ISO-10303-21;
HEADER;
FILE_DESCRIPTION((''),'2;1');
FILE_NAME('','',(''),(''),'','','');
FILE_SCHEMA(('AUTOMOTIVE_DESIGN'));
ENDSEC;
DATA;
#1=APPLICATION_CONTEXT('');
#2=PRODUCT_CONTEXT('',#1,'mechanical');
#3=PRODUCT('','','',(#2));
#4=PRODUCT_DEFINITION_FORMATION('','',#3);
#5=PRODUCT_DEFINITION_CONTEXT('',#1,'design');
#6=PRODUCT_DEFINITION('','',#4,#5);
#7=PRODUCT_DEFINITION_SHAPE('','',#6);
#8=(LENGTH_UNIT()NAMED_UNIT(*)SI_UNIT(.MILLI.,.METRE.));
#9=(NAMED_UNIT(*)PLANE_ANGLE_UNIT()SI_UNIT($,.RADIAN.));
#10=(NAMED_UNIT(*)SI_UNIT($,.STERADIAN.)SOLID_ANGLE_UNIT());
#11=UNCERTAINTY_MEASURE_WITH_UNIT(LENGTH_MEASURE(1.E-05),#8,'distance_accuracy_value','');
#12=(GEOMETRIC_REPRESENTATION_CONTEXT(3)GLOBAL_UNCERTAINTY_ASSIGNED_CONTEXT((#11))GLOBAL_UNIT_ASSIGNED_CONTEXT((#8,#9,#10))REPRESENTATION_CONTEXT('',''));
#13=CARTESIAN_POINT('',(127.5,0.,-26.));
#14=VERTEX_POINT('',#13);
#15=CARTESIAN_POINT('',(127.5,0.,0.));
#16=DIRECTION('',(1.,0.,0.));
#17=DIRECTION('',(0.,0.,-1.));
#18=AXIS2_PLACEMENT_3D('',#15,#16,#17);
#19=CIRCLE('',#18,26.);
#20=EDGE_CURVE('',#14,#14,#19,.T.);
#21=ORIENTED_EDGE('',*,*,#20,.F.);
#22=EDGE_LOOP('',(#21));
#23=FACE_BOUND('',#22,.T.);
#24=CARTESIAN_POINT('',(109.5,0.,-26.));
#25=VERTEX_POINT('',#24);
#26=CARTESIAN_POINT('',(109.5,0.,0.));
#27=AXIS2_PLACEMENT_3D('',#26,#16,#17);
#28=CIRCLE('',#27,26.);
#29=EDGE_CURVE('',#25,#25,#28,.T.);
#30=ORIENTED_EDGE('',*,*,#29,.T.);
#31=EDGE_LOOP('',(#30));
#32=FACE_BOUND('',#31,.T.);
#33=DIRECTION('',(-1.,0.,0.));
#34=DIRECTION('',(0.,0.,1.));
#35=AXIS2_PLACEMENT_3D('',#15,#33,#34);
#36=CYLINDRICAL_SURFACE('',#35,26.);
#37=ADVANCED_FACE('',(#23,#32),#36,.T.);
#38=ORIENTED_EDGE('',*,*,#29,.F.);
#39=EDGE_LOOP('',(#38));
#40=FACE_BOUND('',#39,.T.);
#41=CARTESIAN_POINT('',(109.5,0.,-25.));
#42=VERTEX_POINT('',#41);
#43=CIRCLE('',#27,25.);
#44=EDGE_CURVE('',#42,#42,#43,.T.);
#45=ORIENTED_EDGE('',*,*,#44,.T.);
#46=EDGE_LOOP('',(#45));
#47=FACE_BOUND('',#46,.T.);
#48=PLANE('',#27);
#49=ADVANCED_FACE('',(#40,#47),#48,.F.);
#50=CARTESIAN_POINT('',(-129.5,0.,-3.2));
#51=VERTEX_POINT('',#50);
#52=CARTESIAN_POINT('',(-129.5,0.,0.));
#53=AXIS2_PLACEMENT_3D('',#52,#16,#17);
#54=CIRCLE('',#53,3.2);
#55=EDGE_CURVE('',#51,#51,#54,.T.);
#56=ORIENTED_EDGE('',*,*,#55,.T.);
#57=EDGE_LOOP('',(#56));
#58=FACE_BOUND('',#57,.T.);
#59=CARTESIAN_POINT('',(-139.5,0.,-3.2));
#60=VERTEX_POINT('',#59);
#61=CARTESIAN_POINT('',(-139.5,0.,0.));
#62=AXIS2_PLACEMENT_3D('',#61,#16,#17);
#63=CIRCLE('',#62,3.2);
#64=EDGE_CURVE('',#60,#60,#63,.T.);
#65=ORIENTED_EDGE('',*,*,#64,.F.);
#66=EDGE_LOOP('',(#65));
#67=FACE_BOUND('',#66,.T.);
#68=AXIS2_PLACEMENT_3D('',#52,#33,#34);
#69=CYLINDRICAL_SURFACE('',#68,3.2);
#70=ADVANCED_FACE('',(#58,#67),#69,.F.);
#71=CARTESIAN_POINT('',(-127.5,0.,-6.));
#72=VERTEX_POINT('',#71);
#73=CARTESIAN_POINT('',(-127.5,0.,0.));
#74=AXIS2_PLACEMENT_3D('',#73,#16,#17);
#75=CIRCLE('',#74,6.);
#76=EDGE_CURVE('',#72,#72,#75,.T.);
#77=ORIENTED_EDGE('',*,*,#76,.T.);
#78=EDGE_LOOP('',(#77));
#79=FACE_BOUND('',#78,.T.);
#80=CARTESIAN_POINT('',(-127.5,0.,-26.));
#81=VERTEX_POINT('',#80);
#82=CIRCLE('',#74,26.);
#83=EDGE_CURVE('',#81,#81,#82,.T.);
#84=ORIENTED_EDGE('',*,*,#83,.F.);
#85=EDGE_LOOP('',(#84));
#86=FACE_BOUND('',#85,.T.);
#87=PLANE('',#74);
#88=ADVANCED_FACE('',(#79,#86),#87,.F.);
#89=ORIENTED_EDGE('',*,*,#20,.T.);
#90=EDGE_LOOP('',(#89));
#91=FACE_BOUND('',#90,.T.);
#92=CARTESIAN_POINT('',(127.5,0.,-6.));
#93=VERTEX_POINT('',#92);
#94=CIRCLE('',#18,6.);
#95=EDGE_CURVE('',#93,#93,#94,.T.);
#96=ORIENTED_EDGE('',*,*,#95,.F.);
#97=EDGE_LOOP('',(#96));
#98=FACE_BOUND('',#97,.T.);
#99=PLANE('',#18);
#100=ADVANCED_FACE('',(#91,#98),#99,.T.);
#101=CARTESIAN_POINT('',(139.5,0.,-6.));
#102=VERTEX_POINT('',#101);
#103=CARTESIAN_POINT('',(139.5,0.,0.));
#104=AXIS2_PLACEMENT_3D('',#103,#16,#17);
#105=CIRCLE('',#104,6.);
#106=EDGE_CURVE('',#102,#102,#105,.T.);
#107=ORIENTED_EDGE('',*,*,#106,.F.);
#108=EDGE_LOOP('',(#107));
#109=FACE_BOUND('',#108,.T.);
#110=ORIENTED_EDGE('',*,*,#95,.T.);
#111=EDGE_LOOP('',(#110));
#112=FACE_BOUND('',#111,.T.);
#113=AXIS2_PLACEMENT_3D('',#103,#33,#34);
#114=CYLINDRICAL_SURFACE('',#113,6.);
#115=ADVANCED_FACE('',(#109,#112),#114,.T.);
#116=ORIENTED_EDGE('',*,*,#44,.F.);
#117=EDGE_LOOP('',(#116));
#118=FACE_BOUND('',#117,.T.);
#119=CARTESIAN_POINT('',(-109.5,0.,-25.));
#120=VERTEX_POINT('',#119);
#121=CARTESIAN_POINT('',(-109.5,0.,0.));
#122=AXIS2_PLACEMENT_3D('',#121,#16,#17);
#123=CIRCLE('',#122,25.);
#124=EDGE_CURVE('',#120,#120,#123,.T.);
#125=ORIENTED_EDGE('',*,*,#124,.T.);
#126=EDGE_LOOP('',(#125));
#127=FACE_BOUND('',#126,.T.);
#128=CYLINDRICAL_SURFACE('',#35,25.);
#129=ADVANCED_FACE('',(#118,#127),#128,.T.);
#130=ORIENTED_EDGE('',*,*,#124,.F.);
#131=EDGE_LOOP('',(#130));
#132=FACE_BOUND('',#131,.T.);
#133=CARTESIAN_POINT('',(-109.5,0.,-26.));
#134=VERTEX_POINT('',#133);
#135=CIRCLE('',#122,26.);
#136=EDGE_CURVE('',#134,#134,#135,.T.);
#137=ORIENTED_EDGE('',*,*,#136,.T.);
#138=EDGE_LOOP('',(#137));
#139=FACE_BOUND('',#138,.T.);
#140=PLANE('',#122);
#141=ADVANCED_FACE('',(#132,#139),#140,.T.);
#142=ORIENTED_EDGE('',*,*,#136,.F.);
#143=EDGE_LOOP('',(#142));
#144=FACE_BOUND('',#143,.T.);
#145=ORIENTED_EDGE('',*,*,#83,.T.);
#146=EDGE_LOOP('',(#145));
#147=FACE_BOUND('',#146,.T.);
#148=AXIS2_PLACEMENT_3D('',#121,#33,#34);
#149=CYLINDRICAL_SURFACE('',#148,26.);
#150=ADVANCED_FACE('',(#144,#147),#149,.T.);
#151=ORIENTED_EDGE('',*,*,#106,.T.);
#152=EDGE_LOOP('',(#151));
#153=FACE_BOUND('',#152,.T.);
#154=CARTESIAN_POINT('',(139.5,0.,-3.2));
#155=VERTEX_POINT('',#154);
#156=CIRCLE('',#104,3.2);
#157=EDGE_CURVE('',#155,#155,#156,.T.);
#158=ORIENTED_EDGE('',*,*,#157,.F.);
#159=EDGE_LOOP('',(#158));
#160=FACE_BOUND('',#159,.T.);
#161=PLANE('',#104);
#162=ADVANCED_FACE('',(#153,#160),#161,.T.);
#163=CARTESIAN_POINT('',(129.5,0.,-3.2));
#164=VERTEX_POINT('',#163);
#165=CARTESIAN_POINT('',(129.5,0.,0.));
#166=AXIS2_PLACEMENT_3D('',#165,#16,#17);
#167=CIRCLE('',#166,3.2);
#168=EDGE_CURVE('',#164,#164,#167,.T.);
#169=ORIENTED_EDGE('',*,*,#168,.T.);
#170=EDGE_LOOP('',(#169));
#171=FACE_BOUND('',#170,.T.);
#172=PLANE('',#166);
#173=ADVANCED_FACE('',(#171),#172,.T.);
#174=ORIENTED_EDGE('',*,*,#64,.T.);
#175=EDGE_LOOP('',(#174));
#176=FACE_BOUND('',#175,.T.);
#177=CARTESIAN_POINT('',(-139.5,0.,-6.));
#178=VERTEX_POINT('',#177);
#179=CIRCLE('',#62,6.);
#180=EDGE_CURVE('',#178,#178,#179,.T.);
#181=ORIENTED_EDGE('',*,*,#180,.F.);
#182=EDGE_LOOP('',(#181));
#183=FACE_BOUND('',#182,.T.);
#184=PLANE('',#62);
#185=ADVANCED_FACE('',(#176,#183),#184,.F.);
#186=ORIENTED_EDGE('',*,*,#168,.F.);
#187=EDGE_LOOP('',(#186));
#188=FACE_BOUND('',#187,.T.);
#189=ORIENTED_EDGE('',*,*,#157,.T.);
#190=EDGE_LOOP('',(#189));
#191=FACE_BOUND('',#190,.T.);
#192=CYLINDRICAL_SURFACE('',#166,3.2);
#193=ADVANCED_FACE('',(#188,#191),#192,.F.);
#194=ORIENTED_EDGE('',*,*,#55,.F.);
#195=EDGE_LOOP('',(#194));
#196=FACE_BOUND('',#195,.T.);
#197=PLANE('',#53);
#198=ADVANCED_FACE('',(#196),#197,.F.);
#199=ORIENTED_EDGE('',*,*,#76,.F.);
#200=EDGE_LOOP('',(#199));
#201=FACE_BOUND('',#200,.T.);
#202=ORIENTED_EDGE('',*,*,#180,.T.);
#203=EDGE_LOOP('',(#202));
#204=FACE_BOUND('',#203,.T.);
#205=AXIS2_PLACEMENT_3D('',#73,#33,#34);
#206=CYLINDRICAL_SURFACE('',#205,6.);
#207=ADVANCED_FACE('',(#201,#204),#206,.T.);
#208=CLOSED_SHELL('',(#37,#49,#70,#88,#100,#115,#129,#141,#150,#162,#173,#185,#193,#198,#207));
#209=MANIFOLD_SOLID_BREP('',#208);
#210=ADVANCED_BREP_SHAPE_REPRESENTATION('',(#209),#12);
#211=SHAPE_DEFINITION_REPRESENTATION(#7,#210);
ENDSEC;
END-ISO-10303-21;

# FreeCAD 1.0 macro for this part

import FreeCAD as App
import Part
import Sketcher

doc = App.newDocument("Part")
body = doc.addObject("PartDesign::Body", "Body")

# Sketch on YZ plane
sketch1 = doc.addObject("Sketcher::SketchObject", "Sketch")
body.addObject(sketch1)
sketch1.AttachmentSupport = (doc.YZ_Plane, [""])
sketch1.MapMode = "FlatFace"
sketch1.AttachmentOffset = App.Placement(App.Vector(0, 0, -127.5), App.Rotation())
sketch1.addGeometry(Part.Circle(App.Vector(0, 0, 0), App.Vector(0, 0, 1), 25), False)
sketch1.addConstraint(Sketcher.Constraint("Coincident", 0, 3, -1, 1))
sketch1.addConstraint(Sketcher.Constraint("Diameter", 0, 50.0))
pad1 = doc.addObject("PartDesign::Pad", "Pad")
body.addObject(pad1)
pad1.Profile = sketch1
pad1.Length = 255

# Sketch on YZ plane
sketch2 = doc.addObject("Sketcher::SketchObject", "Sketch001")
body.addObject(sketch2)
sketch2.AttachmentSupport = (doc.YZ_Plane, [""])
sketch2.MapMode = "FlatFace"
sketch2.AttachmentOffset = App.Placement(App.Vector(0, 0, -127.5), App.Rotation())
sketch2.addGeometry(Part.Circle(App.Vector(0, 0, 0), App.Vector(0, 0, 1), 26), False)
sketch2.addConstraint(Sketcher.Constraint("Coincident", 0, 3, -1, 1))
sketch2.addConstraint(Sketcher.Constraint("Diameter", 0, 52.0))
pad2 = doc.addObject("PartDesign::Pad", "Pad001")
body.addObject(pad2)
pad2.Profile = sketch2
pad2.Length = 18

# Sketch on YZ plane
sketch3 = doc.addObject("Sketcher::SketchObject", "Sketch002")
body.addObject(sketch3)
sketch3.AttachmentSupport = (doc.YZ_Plane, [""])
sketch3.MapMode = "FlatFace"
sketch3.AttachmentOffset = App.Placement(App.Vector(0, 0, 109.5), App.Rotation())
sketch3.addGeometry(Part.Circle(App.Vector(0, 0, 0), App.Vector(0, 0, 1), 26), False)
sketch3.addConstraint(Sketcher.Constraint("Coincident", 0, 3, -1, 1))
sketch3.addConstraint(Sketcher.Constraint("Diameter", 0, 52.0))
pad3 = doc.addObject("PartDesign::Pad", "Pad002")
body.addObject(pad3)
pad3.Profile = sketch3
pad3.Length = 18

# Sketch on YZ plane
sketch4 = doc.addObject("Sketcher::SketchObject", "Sketch003")
body.addObject(sketch4)
sketch4.AttachmentSupport = (doc.YZ_Plane, [""])
sketch4.MapMode = "FlatFace"
sketch4.AttachmentOffset = App.Placement(App.Vector(0, 0, -139.5), App.Rotation())
sketch4.addGeometry(Part.Circle(App.Vector(0, 0, 0), App.Vector(0, 0, 1), 6), False)
sketch4.addConstraint(Sketcher.Constraint("Coincident", 0, 3, -1, 1))
sketch4.addConstraint(Sketcher.Constraint("Diameter", 0, 12.0))
pad4 = doc.addObject("PartDesign::Pad", "Pad003")
body.addObject(pad4)
pad4.Profile = sketch4
pad4.Length = 12

# Sketch on YZ plane
sketch5 = doc.addObject("Sketcher::SketchObject", "Sketch004")
body.addObject(sketch5)
sketch5.AttachmentSupport = (doc.YZ_Plane, [""])
sketch5.MapMode = "FlatFace"
sketch5.AttachmentOffset = App.Placement(App.Vector(0, 0, -139.5), App.Rotation())
sketch5.addGeometry(Part.Circle(App.Vector(0, 0, 0), App.Vector(0, 0, 1), 3.2), False)
sketch5.addConstraint(Sketcher.Constraint("Coincident", 0, 3, -1, 1))
sketch5.addConstraint(Sketcher.Constraint("Diameter", 0, 6.4))
pocket1 = doc.addObject("PartDesign::Pocket", "Pocket")
body.addObject(pocket1)
pocket1.Profile = sketch5
pocket1.Length = 10
pocket1.Reversed = True

# Sketch on YZ plane
sketch6 = doc.addObject("Sketcher::SketchObject", "Sketch005")
body.addObject(sketch6)
sketch6.AttachmentSupport = (doc.YZ_Plane, [""])
sketch6.MapMode = "FlatFace"
sketch6.AttachmentOffset = App.Placement(App.Vector(0, 0, 127.5), App.Rotation())
sketch6.addGeometry(Part.Circle(App.Vector(0, 0, 0), App.Vector(0, 0, 1), 6), False)
sketch6.addConstraint(Sketcher.Constraint("Coincident", 0, 3, -1, 1))
sketch6.addConstraint(Sketcher.Constraint("Diameter", 0, 12.0))
pad5 = doc.addObject("PartDesign::Pad", "Pad004")
body.addObject(pad5)
pad5.Profile = sketch6
pad5.Length = 12

# Sketch on YZ plane
sketch7 = doc.addObject("Sketcher::SketchObject", "Sketch006")
body.addObject(sketch7)
sketch7.AttachmentSupport = (doc.YZ_Plane, [""])
sketch7.MapMode = "FlatFace"
sketch7.AttachmentOffset = App.Placement(App.Vector(0, 0, 129.5), App.Rotation())
sketch7.addGeometry(Part.Circle(App.Vector(0, 0, 0), App.Vector(0, 0, 1), 3.2), False)
sketch7.addConstraint(Sketcher.Constraint("Coincident", 0, 3, -1, 1))
sketch7.addConstraint(Sketcher.Constraint("Diameter", 0, 6.4))
pocket2 = doc.addObject("PartDesign::Pocket", "Pocket001")
body.addObject(pocket2)
pocket2.Profile = sketch7
pocket2.Length = 10
pocket2.Reversed = True

doc.recompute()
